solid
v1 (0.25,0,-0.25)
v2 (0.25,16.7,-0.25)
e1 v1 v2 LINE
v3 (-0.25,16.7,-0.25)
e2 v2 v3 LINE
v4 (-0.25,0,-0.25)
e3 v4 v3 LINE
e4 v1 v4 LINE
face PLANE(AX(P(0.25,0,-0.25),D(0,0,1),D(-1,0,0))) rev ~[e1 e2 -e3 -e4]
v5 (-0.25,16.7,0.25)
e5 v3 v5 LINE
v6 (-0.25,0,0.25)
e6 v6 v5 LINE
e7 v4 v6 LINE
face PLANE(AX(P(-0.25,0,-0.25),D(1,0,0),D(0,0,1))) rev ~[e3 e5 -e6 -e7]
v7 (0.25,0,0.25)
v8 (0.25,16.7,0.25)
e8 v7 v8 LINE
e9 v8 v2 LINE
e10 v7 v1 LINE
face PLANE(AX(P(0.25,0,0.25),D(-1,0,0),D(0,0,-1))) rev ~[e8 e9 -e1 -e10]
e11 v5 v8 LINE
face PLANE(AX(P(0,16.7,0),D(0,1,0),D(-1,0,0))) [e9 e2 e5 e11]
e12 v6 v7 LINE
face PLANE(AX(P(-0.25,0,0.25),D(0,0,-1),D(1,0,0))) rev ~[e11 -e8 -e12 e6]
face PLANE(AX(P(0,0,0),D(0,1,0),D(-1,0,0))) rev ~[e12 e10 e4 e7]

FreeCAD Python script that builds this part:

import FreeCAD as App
import Part
import Sketcher
Q = App.Units.Quantity

doc = App.newDocument("Part")
body = doc.addObject("PartDesign::Body", "Body")

sketch1 = body.newObject("Sketcher::SketchObject", "Sketch")
sketch1.AttachmentSupport = (doc.getObject("XZ_Plane"), [""])
sketch1.MapMode = "FlatFace"
sketch1.addGeometry([
    Part.LineSegment(App.Vector(-0.2, -0.2, 0), App.Vector(-0.2, 0.2, 0)),
    Part.LineSegment(App.Vector(-0.2, 0.2, 0), App.Vector(0.2, 0.2, 0)),
    Part.LineSegment(App.Vector(0.2, 0.2, 0), App.Vector(0.2, -0.2, 0)),
    Part.LineSegment(App.Vector(0.2, -0.2, 0), App.Vector(-0.2, -0.2, 0)),
], False)
sketch1.addConstraint([
    Sketcher.Constraint("Coincident", 0, 2, 1, 1),
    Sketcher.Constraint("Coincident", 1, 2, 2, 1),
    Sketcher.Constraint("Coincident", 2, 2, 3, 1),
    Sketcher.Constraint("Coincident", 3, 2, 0, 1),
    Sketcher.Constraint("Vertical", 0),
    Sketcher.Constraint("Horizontal", 1),
    Sketcher.Constraint("Vertical", 2),
    Sketcher.Constraint("Horizontal", 3),
    Sketcher.Constraint("Symmetric", 0, 2, 2, 2, -1, 1),
    Sketcher.Constraint("Equal", 3, 0),
    Sketcher.Constraint("DistanceX", 1, 1, 1, 2, Q("0.5 mm")),
])
pad1 = body.newObject("PartDesign::Pad", "Pad")
pad1.Profile = sketch1
pad1.Length = 16.7
pad1.Reversed = True

doc.recompute()
